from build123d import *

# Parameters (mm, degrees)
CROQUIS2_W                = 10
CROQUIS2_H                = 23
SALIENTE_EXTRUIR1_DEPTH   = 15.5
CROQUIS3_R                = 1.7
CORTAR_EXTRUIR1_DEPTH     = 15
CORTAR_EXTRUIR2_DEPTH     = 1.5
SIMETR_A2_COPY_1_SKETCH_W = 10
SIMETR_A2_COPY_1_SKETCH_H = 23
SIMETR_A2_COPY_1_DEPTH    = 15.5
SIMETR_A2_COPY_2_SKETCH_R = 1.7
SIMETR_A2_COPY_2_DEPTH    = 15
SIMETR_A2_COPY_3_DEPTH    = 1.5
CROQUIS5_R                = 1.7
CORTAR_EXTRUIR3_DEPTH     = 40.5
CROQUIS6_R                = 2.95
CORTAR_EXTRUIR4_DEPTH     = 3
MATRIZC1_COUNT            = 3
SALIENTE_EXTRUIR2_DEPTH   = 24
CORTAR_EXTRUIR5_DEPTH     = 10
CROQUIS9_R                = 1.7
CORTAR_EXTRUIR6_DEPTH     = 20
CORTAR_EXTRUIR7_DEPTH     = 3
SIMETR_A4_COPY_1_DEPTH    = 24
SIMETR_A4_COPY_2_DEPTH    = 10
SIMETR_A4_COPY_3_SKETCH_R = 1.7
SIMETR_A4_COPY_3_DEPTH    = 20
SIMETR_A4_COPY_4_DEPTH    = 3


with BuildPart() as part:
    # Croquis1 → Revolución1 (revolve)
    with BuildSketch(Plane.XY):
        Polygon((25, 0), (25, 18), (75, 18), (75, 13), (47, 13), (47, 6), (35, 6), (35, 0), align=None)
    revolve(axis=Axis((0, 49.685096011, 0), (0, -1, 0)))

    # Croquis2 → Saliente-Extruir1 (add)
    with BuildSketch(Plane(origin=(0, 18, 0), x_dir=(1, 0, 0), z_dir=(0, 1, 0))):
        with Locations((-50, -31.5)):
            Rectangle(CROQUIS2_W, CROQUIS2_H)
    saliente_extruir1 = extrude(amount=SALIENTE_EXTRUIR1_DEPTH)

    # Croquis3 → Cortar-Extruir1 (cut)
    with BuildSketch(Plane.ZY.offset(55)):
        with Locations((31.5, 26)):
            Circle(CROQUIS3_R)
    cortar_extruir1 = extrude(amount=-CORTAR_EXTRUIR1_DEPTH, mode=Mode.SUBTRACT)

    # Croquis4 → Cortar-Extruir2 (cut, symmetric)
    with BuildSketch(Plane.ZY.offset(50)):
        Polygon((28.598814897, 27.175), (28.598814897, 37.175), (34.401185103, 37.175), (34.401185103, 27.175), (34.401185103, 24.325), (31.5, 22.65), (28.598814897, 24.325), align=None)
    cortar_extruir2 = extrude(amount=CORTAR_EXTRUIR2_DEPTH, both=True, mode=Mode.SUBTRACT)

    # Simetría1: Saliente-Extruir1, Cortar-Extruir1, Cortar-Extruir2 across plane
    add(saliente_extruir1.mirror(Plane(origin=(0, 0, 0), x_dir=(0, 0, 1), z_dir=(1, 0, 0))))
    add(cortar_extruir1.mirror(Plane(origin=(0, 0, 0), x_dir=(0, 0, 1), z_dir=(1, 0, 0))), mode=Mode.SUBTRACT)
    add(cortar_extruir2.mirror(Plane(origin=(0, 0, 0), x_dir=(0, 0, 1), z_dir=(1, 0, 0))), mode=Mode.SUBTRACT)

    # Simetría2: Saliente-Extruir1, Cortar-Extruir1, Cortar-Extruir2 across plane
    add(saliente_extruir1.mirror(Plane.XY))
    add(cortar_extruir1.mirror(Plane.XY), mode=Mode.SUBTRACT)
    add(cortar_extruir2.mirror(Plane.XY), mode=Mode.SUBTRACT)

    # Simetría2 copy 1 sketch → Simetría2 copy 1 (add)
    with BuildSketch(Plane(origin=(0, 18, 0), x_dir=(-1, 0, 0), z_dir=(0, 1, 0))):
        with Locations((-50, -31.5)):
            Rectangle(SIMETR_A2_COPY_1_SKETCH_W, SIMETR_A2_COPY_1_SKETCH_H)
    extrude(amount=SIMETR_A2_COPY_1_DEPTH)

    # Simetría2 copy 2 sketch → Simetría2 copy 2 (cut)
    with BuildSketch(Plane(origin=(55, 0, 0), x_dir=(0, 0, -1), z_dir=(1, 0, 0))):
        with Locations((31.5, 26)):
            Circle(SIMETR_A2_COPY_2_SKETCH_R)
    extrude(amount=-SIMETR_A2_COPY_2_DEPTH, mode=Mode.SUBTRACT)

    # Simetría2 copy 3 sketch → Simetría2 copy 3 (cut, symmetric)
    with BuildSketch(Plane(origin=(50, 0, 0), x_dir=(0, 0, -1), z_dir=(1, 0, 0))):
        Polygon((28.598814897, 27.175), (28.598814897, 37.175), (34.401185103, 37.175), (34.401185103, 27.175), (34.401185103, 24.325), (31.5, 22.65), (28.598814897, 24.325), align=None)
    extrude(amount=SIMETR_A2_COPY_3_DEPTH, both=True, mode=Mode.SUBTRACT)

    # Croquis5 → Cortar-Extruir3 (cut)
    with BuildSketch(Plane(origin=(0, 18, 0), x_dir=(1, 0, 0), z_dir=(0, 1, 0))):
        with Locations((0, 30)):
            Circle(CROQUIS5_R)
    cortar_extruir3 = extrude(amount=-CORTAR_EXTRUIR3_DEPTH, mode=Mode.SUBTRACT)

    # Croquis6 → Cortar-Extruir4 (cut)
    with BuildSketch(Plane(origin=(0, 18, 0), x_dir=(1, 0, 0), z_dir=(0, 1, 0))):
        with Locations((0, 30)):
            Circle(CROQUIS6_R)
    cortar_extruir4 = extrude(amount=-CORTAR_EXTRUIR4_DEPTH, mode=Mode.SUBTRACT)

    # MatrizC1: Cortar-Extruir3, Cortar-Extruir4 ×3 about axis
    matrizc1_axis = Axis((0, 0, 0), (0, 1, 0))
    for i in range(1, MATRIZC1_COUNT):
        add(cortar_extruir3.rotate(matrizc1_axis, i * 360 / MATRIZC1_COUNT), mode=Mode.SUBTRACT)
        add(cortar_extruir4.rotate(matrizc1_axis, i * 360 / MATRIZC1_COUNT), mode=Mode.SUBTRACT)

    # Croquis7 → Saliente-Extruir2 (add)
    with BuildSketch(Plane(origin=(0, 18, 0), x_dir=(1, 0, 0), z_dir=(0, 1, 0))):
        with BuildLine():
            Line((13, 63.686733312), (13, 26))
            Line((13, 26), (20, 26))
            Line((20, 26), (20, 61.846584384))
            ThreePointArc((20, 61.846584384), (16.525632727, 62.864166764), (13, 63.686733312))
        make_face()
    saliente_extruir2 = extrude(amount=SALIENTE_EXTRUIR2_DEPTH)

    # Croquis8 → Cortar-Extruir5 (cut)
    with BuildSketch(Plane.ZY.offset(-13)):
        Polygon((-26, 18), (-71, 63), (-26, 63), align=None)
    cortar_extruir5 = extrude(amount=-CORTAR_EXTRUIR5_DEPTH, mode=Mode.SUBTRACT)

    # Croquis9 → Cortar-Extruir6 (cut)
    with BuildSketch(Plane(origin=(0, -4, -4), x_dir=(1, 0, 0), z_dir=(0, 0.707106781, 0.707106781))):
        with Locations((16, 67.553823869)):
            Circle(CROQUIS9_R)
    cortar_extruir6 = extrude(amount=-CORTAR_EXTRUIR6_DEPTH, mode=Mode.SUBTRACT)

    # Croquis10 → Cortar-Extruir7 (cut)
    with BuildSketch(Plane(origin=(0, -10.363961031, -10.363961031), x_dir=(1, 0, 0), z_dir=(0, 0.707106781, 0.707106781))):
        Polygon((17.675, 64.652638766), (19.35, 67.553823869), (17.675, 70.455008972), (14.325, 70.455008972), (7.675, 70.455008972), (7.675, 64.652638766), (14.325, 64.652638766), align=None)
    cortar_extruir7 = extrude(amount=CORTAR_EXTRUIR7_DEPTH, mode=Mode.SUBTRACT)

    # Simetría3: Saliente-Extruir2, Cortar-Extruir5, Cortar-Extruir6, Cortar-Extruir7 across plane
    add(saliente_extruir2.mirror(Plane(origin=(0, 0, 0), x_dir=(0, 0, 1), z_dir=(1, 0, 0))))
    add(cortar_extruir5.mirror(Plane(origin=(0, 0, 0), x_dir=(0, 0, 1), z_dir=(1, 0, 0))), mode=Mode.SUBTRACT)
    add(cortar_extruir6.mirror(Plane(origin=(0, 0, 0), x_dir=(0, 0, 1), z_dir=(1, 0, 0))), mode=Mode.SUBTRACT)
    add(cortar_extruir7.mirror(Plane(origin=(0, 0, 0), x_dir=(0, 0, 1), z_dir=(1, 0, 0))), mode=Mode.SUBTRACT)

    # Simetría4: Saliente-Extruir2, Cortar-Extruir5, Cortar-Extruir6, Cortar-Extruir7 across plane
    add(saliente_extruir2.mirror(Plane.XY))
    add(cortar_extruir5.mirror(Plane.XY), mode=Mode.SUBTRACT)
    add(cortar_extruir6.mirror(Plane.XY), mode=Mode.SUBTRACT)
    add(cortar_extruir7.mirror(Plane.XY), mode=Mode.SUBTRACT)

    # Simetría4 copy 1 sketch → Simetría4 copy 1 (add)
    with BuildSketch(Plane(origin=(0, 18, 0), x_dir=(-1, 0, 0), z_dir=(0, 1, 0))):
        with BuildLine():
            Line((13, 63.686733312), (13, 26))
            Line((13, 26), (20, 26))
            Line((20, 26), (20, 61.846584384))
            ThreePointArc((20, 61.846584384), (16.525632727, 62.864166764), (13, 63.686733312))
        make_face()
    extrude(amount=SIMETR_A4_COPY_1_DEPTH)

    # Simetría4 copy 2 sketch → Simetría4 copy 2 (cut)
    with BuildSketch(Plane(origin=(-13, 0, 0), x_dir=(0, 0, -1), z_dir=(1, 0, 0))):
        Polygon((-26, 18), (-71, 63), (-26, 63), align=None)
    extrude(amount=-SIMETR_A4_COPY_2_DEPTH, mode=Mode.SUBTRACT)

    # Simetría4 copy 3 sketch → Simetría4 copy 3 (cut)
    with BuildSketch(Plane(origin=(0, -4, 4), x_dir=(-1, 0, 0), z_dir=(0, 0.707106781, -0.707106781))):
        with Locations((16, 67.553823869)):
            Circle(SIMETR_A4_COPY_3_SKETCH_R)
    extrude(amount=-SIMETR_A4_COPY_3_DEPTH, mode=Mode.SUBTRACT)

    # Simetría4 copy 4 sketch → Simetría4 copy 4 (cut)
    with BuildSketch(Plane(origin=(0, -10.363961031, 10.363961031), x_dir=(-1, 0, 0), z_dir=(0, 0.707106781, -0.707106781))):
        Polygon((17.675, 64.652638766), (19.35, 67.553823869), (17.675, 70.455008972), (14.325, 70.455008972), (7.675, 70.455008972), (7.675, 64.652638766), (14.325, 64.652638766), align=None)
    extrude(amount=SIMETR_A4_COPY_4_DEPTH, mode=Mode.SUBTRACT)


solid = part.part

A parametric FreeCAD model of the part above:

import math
import FreeCAD as App
import Part
import Sketcher

V = App.Vector
Q = App.Units.Quantity


def add_polygon(sketch, points):
    """Adds a closed chain of lines whose ends are joined by coincident constraints."""
    first, n = sketch.GeometryCount, len(points)
    for a, b in zip(points, points[1:] + points[:1]):
        sketch.addGeometry(Part.LineSegment(App.Vector(*a, 0), App.Vector(*b, 0)), False)
    for i in range(n):
        sketch.addConstraint(Sketcher.Constraint("Coincident", first + i, 2, first + (i + 1) % n, 1))

doc = App.newDocument("Part")
body = doc.addObject("PartDesign::Body", "Body")

sketch1 = body.newObject("Sketcher::SketchObject", "Sketch")
sketch1.AttachmentSupport = (doc.getObject("XY_Plane"), [""])
sketch1.MapMode = "FlatFace"
add_polygon(sketch1, [(25, 18), (25, 0), (35, 0), (35, 6), (47, 6), (47, 13), (75, 13), (75, 18)])
sketch1.addConstraint(Sketcher.Constraint("Vertical", 0))
sketch1.addConstraint(Sketcher.Constraint("Horizontal", 1))
sketch1.addConstraint(Sketcher.Constraint("Vertical", 2))
sketch1.addConstraint(Sketcher.Constraint("Horizontal", 3))
sketch1.addConstraint(Sketcher.Constraint("Vertical", 4))
sketch1.addConstraint(Sketcher.Constraint("Horizontal", 5))
sketch1.addConstraint(Sketcher.Constraint("Vertical", 6))
sketch1.addConstraint(Sketcher.Constraint("Horizontal", 7))
sketch1.addConstraint(Sketcher.Constraint("PointOnObject", 0, 2, -1))
sketch1.addConstraint(Sketcher.Constraint("DistanceX", 1, 1, 1, 2, 10.0))
sketch1.addConstraint(Sketcher.Constraint("DistanceX", 3, 1, 3, 2, 12.0))
sketch1.addConstraint(Sketcher.Constraint("DistanceX", 5, 1, 5, 2, 28.0))
sketch1.addConstraint(Sketcher.Constraint("DistanceY", 0, 2, 0, 1, 18.0))
sketch1.addConstraint(Sketcher.Constraint("DistanceY", 2, 1, 2, 2, 6.0))
sketch1.addConstraint(Sketcher.Constraint("DistanceY", 4, 1, 4, 2, 7.0))
sketch1.addConstraint(Sketcher.Constraint("DistanceX", -1, 1, 0, 2, 25.0))
revolution = body.newObject("PartDesign::Revolution", "Revolution")
revolution.Profile = sketch1
revolution.ReferenceAxis = (sketch1, ["V_Axis"])
revolution.Angle = 360

sketch2 = body.newObject("Sketcher::SketchObject", "Sketch001")
sketch2.AttachmentSupport = (doc.getObject("XZ_Plane"), [""])
sketch2.MapMode = "FlatFace"
sketch2.AttachmentOffset = App.Placement(V(0, 0, -18), App.Rotation())
add_polygon(sketch2, [(-55, 20), (-55, 43), (-45, 43), (-45, 20)])
sketch2.addConstraint(Sketcher.Constraint("Vertical", 0))
sketch2.addConstraint(Sketcher.Constraint("Horizontal", 1))
sketch2.addConstraint(Sketcher.Constraint("Vertical", 2))
sketch2.addConstraint(Sketcher.Constraint("Horizontal", 3))
sketch2.addConstraint(Sketcher.Constraint("DistanceX", 1, 1, 1, 2, 10.0))
sketch2.addConstraint(Sketcher.Constraint("DistanceY", 0, 1, 0, 2, 23.0))
sketch2.addConstraint(Sketcher.Constraint("DistanceX", 0, 2, -1, 1, 55.0))
sketch2.addConstraint(Sketcher.Constraint("DistanceY", -1, 1, 0, 2, 43.0))
pad1 = body.newObject("PartDesign::Pad", "Pad")
pad1.Profile = sketch2
pad1.Length = 15.5
pad1.Reversed = True

sketch3 = body.newObject("Sketcher::SketchObject", "Sketch002")
sketch3.AttachmentSupport = (doc.getObject("YZ_Plane"), [""])
sketch3.MapMode = "FlatFace"
sketch3.AttachmentOffset = App.Placement(V(0, 0, -55), App.Rotation())
sketch3.addGeometry(Part.Circle(V(26, 31.5, 0), V(0, 0, 1), 1.7), False)
sketch3.addConstraint(Sketcher.Constraint("Diameter", 0, 3.4))
sketch3.addConstraint(Sketcher.Constraint("DistanceX", -1, 1, 0, 3, 26.0))
sketch3.addConstraint(Sketcher.Constraint("DistanceY", -1, 1, 0, 3, 31.5))
pocket1 = body.newObject("PartDesign::Pocket", "Pocket")
pocket1.Profile = sketch3
pocket1.Length = 15
pocket1.Reversed = True

sketch4 = body.newObject("Sketcher::SketchObject", "Sketch003")
sketch4.AttachmentSupport = (doc.getObject("YZ_Plane"), [""])
sketch4.MapMode = "FlatFace"
sketch4.AttachmentOffset = App.Placement(V(0, 0, -50), App.Rotation())
add_polygon(sketch4, [(37.2, 28.6), (24.3, 28.6), (22.6, 31.5), (24.3, 34.4), (37.2, 34.4)])
sketch4.addConstraint(Sketcher.Constraint("Horizontal", 0))
sketch4.addConstraint(Sketcher.Constraint("Horizontal", 3))
sketch4.addConstraint(Sketcher.Constraint("Vertical", 4))
sketch4.addConstraint(Sketcher.Constraint("Vertical", 0, 2, 2, 2))
sketch4.addConstraint(Sketcher.Constraint("Equal", 1, 2))
sketch4.addConstraint(Sketcher.Constraint("Angle", 1, Q("120 deg")))
sketch4.addConstraint(Sketcher.Constraint("DistanceX", 0, 2, 0, 1, 12.85))
sketch4.addConstraint(Sketcher.Constraint("DistanceY", -1, 1, 1, 2, 31.5))
sketch4.addConstraint(Sketcher.Constraint("Distance", 1, 3.35))
sketch4.addConstraint(Sketcher.Constraint("DistanceX", -1, 1, 1, 2, 22.65))
pocket2 = body.newObject("PartDesign::Pocket", "Pocket001")
pocket2.Profile = sketch4
pocket2.Length = 3
pocket2.Midplane = True
doc.recompute()

mirrored = body.newObject("PartDesign::Mirrored", "Mirrored")
mirrored.Originals = [pad1, pocket1, pocket2]
mirrored.MirrorPlane = (doc.getObject("YZ_Plane"), [""])
body.Tip = mirrored
doc.recompute()

mirrored2 = body.newObject("PartDesign::Mirrored", "Mirrored001")
mirrored2.Originals = [pad1, pocket1, pocket2]
mirrored2.MirrorPlane = (doc.getObject("XY_Plane"), [""])
body.Tip = mirrored2

sketch5 = body.newObject("Sketcher::SketchObject", "Sketch004")
sketch5.AttachmentSupport = (doc.getObject("XZ_Plane"), [""])
sketch5.MapMode = "FlatFace"
sketch5.AttachmentOffset = App.Placement(V(0, 0, -18), App.Rotation())
add_polygon(sketch5, [(55, -20), (55, -43), (45, -43), (45, -20)])
sketch5.addConstraint(Sketcher.Constraint("Vertical", 0))
sketch5.addConstraint(Sketcher.Constraint("Horizontal", 1))
sketch5.addConstraint(Sketcher.Constraint("Vertical", 2))
sketch5.addConstraint(Sketcher.Constraint("Horizontal", 3))
sketch5.addConstraint(Sketcher.Constraint("DistanceX", 1, 2, 1, 1, 10.0))
sketch5.addConstraint(Sketcher.Constraint("DistanceY", 0, 2, 0, 1, 23.0))
sketch5.addConstraint(Sketcher.Constraint("DistanceX", -1, 1, 0, 2, 55.0))
sketch5.addConstraint(Sketcher.Constraint("DistanceY", 0, 2, -1, 1, 43.0))
pad2 = body.newObject("PartDesign::Pad", "Pad001")
pad2.Profile = sketch5
pad2.Length = 15.5
pad2.Reversed = True

sketch6 = body.newObject("Sketcher::SketchObject", "Sketch005")
sketch6.AttachmentSupport = (doc.getObject("YZ_Plane"), [""])
sketch6.MapMode = "FlatFace"
sketch6.AttachmentOffset = App.Placement(V(0, 0, 55), App.Rotation())
sketch6.addGeometry(Part.Circle(V(26, -31.5, 0), V(0, 0, 1), 1.7), False)
sketch6.addConstraint(Sketcher.Constraint("Diameter", 0, 3.4))
sketch6.addConstraint(Sketcher.Constraint("DistanceX", -1, 1, 0, 3, 26.0))
sketch6.addConstraint(Sketcher.Constraint("DistanceY", 0, 3, -1, 1, 31.5))
pocket3 = body.newObject("PartDesign::Pocket", "Pocket002")
pocket3.Profile = sketch6
pocket3.Length = 15

sketch7 = body.newObject("Sketcher::SketchObject", "Sketch006")
sketch7.AttachmentSupport = (doc.getObject("YZ_Plane"), [""])
sketch7.MapMode = "FlatFace"
sketch7.AttachmentOffset = App.Placement(V(0, 0, 50), App.Rotation())
add_polygon(sketch7, [(37.2, -28.6), (24.3, -28.6), (22.6, -31.5), (24.3, -34.4), (37.2, -34.4)])
sketch7.addConstraint(Sketcher.Constraint("Horizontal", 0))
sketch7.addConstraint(Sketcher.Constraint("Horizontal", 3))
sketch7.addConstraint(Sketcher.Constraint("Vertical", 4))
sketch7.addConstraint(Sketcher.Constraint("Vertical", 0, 2, 2, 2))
sketch7.addConstraint(Sketcher.Constraint("Equal", 1, 2))
sketch7.addConstraint(Sketcher.Constraint("Angle", 1, Q("-120 deg")))
sketch7.addConstraint(Sketcher.Constraint("DistanceX", 0, 2, 0, 1, 12.85))
sketch7.addConstraint(Sketcher.Constraint("DistanceY", 1, 2, -1, 1, 31.5))
sketch7.addConstraint(Sketcher.Constraint("Distance", 1, 3.35))
sketch7.addConstraint(Sketcher.Constraint("DistanceX", -1, 1, 1, 2, 22.65))
pocket4 = body.newObject("PartDesign::Pocket", "Pocket003")
pocket4.Profile = sketch7
pocket4.Length = 3
pocket4.Midplane = True

sketch8 = body.newObject("Sketcher::SketchObject", "Sketch007")
sketch8.AttachmentSupport = (doc.getObject("XZ_Plane"), [""])
sketch8.MapMode = "FlatFace"
sketch8.AttachmentOffset = App.Placement(V(0, 0, -18), App.Rotation())
sketch8.addGeometry(Part.Circle(V(0, -30, 0), V(0, 0, 1), 1.7), False)
sketch8.addConstraint(Sketcher.Constraint("PointOnObject", 0, 3, -2))
sketch8.addConstraint(Sketcher.Constraint("Diameter", 0, 3.4))
sketch8.addConstraint(Sketcher.Constraint("DistanceY", 0, 3, -1, 1, 30.0))
pocket5 = body.newObject("PartDesign::Pocket", "Pocket004")
pocket5.Profile = sketch8
pocket5.Length = 40.5
pocket5.Reversed = True

sketch9 = body.newObject("Sketcher::SketchObject", "Sketch008")
sketch9.AttachmentSupport = (doc.getObject("XZ_Plane"), [""])
sketch9.MapMode = "FlatFace"
sketch9.AttachmentOffset = App.Placement(V(0, 0, -18), App.Rotation())
sketch9.addGeometry(Part.Circle(V(0, -30, 0), V(0, 0, 1), 3), False)
sketch9.addConstraint(Sketcher.Constraint("PointOnObject", 0, 3, -2))
sketch9.addConstraint(Sketcher.Constraint("Diameter", 0, 5.9))
sketch9.addConstraint(Sketcher.Constraint("DistanceY", 0, 3, -1, 1, 30.0))
pocket6 = body.newObject("PartDesign::Pocket", "Pocket005")
pocket6.Profile = sketch9
pocket6.Length = 3
pocket6.Reversed = True
doc.recompute()

polarpattern = body.newObject("PartDesign::PolarPattern", "PolarPattern")
polarpattern.Originals = [pocket5, pocket6]
polarpattern.Axis = (doc.getObject("Y_Axis"), [""])
polarpattern.Angle = 360
polarpattern.Occurrences = 3
body.Tip = polarpattern

sketch10 = body.newObject("Sketcher::SketchObject", "Sketch009")
sketch10.AttachmentSupport = (doc.getObject("XZ_Plane"), [""])
sketch10.MapMode = "FlatFace"
sketch10.AttachmentOffset = App.Placement(V(0, 0, -18), App.Rotation())
sketch10.addGeometry(Part.LineSegment(V(13, -64, 0), V(13, -26, 0)), False)
sketch10.addGeometry(Part.LineSegment(V(13, -26, 0), V(20, -26, 0)), False)
sketch10.addGeometry(Part.LineSegment(V(20, -26, 0), V(20, -62, 0)), False)
sketch10.addGeometry(Part.ArcOfCircle(Part.Circle(V(0, 0, 0), V(0, 0, 1), 65), math.radians(-78.46), math.radians(-72.08)), False)
sketch10.addConstraint(Sketcher.Constraint("Coincident", 0, 2, 1, 1))
sketch10.addConstraint(Sketcher.Constraint("Coincident", 1, 2, 2, 1))
sketch10.addConstraint(Sketcher.Constraint("Coincident", 2, 2, 3, 2))
sketch10.addConstraint(Sketcher.Constraint("Coincident", 3, 1, 0, 1))
sketch10.addConstraint(Sketcher.Constraint("Vertical", 0))
sketch10.addConstraint(Sketcher.Constraint("Horizontal", 1))
sketch10.addConstraint(Sketcher.Constraint("Vertical", 2))
sketch10.addConstraint(Sketcher.Constraint("Coincident", 3, 3, -1, 1))
sketch10.addConstraint(Sketcher.Constraint("Radius", 3, 65.0))
sketch10.addConstraint(Sketcher.Constraint("DistanceX", 1, 1, 1, 2, 7.0))
sketch10.addConstraint(Sketcher.Constraint("DistanceX", -1, 1, 0, 2, 13.0))
sketch10.addConstraint(Sketcher.Constraint("DistanceY", 0, 2, -1, 1, 26.0))
pad3 = body.newObject("PartDesign::Pad", "Pad002")
pad3.Profile = sketch10
pad3.Length = 24
pad3.Reversed = True

sketch11 = body.newObject("Sketcher::SketchObject", "Sketch010")
sketch11.AttachmentSupport = (doc.getObject("YZ_Plane"), [""])
sketch11.MapMode = "FlatFace"
sketch11.AttachmentOffset = App.Placement(V(0, 0, 13), App.Rotation())
add_polygon(sketch11, [(63, -71), (18, -26), (63, -26)])
sketch11.addConstraint(Sketcher.Constraint("Horizontal", 1))
sketch11.addConstraint(Sketcher.Constraint("Vertical", 2))
sketch11.addConstraint(Sketcher.Constraint("Equal", 1, 2))
sketch11.addConstraint(Sketcher.Constraint("DistanceX", 1, 1, 1, 2, 45.0))
sketch11.addConstraint(Sketcher.Constraint("DistanceX", -1, 1, 0, 2, 18.0))
sketch11.addConstraint(Sketcher.Constraint("DistanceY", 0, 2, -1, 1, 26.0))
pocket7 = body.newObject("PartDesign::Pocket", "Pocket006")
pocket7.Profile = sketch11
pocket7.Length = 10
pocket7.Reversed = True

sketch12 = body.newObject("Sketcher::SketchObject", "Sketch011")
sketch12.Placement = App.Placement(V(0, -4, -4), App.Rotation(V(1, 0, 0), V(0, 0.707106781, -0.707106781), V(0, 0.707106781, 0.707106781), "ZXY"))
sketch12.addGeometry(Part.Circle(V(16, 67.6, 0), V(0, 0, 1), 1.7), False)
sketch12.addConstraint(Sketcher.Constraint("Diameter", 0, 3.4))
sketch12.addConstraint(Sketcher.Constraint("DistanceX", -1, 1, 0, 3, 16.0))
sketch12.addConstraint(Sketcher.Constraint("DistanceY", -1, 1, 0, 3, 67.553824))
pocket8 = body.newObject("PartDesign::Pocket", "Pocket007")
pocket8.Profile = sketch12
pocket8.Length = 20

sketch13 = body.newObject("Sketcher::SketchObject", "Sketch012")
sketch13.Placement = App.Placement(V(0, -10.363961, -10.363961), App.Rotation(V(1, 0, 0), V(0, 0.707106781, -0.707106781), V(0, 0.707106781, 0.707106781), "ZXY"))
add_polygon(sketch13, [(17.7, 64.7), (19.4, 67.6), (17.7, 70.5), (7.7, 70.5), (7.7, 64.7)])
sketch13.addConstraint(Sketcher.Constraint("Horizontal", 2))
sketch13.addConstraint(Sketcher.Constraint("Vertical", 3))
sketch13.addConstraint(Sketcher.Constraint("Horizontal", 4))
sketch13.addConstraint(Sketcher.Constraint("Vertical", 1, 2, 4, 2))
sketch13.addConstraint(Sketcher.Constraint("Equal", 0, 1))
sketch13.addConstraint(Sketcher.Constraint("DistanceX", 2, 2, 2, 1, 10.0))
sketch13.addConstraint(Sketcher.Constraint("Angle", 0, Q("60 deg")))
sketch13.addConstraint(Sketcher.Constraint("Distance", 0, 3.35))
sketch13.addConstraint(Sketcher.Constraint("DistanceX", -1, 1, 0, 2, 19.35))
sketch13.addConstraint(Sketcher.Constraint("DistanceY", -1, 1, 1, 2, 70.455009))
pocket9 = body.newObject("PartDesign::Pocket", "Pocket008")
pocket9.Profile = sketch13
pocket9.Length = 3
pocket9.Reversed = True
doc.recompute()

mirrored3 = body.newObject("PartDesign::Mirrored", "Mirrored002")
mirrored3.Originals = [pad3, pocket7, pocket8, pocket9]
mirrored3.MirrorPlane = (doc.getObject("YZ_Plane"), [""])
body.Tip = mirrored3
doc.recompute()

mirrored4 = body.newObject("PartDesign::Mirrored", "Mirrored003")
mirrored4.Originals = [pad3, pocket7, pocket8, pocket9]
mirrored4.MirrorPlane = (doc.getObject("XY_Plane"), [""])
body.Tip = mirrored4

sketch14 = body.newObject("Sketcher::SketchObject", "Sketch013")
sketch14.AttachmentSupport = (doc.getObject("XZ_Plane"), [""])
sketch14.MapMode = "FlatFace"
sketch14.AttachmentOffset = App.Placement(V(0, 0, -18), App.Rotation())
sketch14.addGeometry(Part.LineSegment(V(-13, 64, 0), V(-13, 26, 0)), False)
sketch14.addGeometry(Part.LineSegment(V(-13, 26, 0), V(-20, 26, 0)), False)
sketch14.addGeometry(Part.LineSegment(V(-20, 26, 0), V(-20, 62, 0)), False)
sketch14.addGeometry(Part.ArcOfCircle(Part.Circle(V(0, 0, 0), V(0, 0, 1), 65), math.radians(101.54), math.radians(107.92)), False)
sketch14.addConstraint(Sketcher.Constraint("Coincident", 0, 2, 1, 1))
sketch14.addConstraint(Sketcher.Constraint("Coincident", 1, 2, 2, 1))
sketch14.addConstraint(Sketcher.Constraint("Coincident", 2, 2, 3, 2))
sketch14.addConstraint(Sketcher.Constraint("Coincident", 3, 1, 0, 1))
sketch14.addConstraint(Sketcher.Constraint("Vertical", 0))
sketch14.addConstraint(Sketcher.Constraint("Horizontal", 1))
sketch14.addConstraint(Sketcher.Constraint("Vertical", 2))
sketch14.addConstraint(Sketcher.Constraint("Coincident", 3, 3, -1, 1))
sketch14.addConstraint(Sketcher.Constraint("Radius", 3, 65.0))
sketch14.addConstraint(Sketcher.Constraint("DistanceX", 1, 2, 1, 1, 7.0))
sketch14.addConstraint(Sketcher.Constraint("DistanceX", 0, 2, -1, 1, 13.0))
sketch14.addConstraint(Sketcher.Constraint("DistanceY", -1, 1, 0, 2, 26.0))
pad4 = body.newObject("PartDesign::Pad", "Pad003")
pad4.Profile = sketch14
pad4.Length = 24
pad4.Reversed = True

sketch15 = body.newObject("Sketcher::SketchObject", "Sketch014")
sketch15.AttachmentSupport = (doc.getObject("YZ_Plane"), [""])
sketch15.MapMode = "FlatFace"
sketch15.AttachmentOffset = App.Placement(V(0, 0, -13), App.Rotation())
add_polygon(sketch15, [(63, 71), (18, 26), (63, 26)])
sketch15.addConstraint(Sketcher.Constraint("Horizontal", 1))
sketch15.addConstraint(Sketcher.Constraint("Vertical", 2))
sketch15.addConstraint(Sketcher.Constraint("Equal", 1, 2))
sketch15.addConstraint(Sketcher.Constraint("DistanceX", 1, 1, 1, 2, 45.0))
sketch15.addConstraint(Sketcher.Constraint("DistanceX", -1, 1, 0, 2, 18.0))
sketch15.addConstraint(Sketcher.Constraint("DistanceY", -1, 1, 0, 2, 26.0))
pocket10 = body.newObject("PartDesign::Pocket", "Pocket009")
pocket10.Profile = sketch15
pocket10.Length = 10

sketch16 = body.newObject("Sketcher::SketchObject", "Sketch015")
sketch16.Placement = App.Placement(V(0, -4, 4), App.Rotation(V(-1, 0, 0), V(0, 0.707106781, 0.707106781), V(0, 0.707106781, -0.707106781), "ZXY"))
sketch16.addGeometry(Part.Circle(V(16, 67.6, 0), V(0, 0, 1), 1.7), False)
sketch16.addConstraint(Sketcher.Constraint("Diameter", 0, 3.4))
sketch16.addConstraint(Sketcher.Constraint("DistanceX", -1, 1, 0, 3, 16.0))
sketch16.addConstraint(Sketcher.Constraint("DistanceY", -1, 1, 0, 3, 67.553824))
pocket11 = body.newObject("PartDesign::Pocket", "Pocket010")
pocket11.Profile = sketch16
pocket11.Length = 20

sketch17 = body.newObject("Sketcher::SketchObject", "Sketch016")
sketch17.Placement = App.Placement(V(0, -10.363961, 10.363961), App.Rotation(V(-1, 0, 0), V(0, 0.707106781, 0.707106781), V(0, 0.707106781, -0.707106781), "ZXY"))
add_polygon(sketch17, [(17.7, 64.7), (19.4, 67.6), (17.7, 70.5), (7.7, 70.5), (7.7, 64.7)])
sketch17.addConstraint(Sketcher.Constraint("Horizontal", 2))
sketch17.addConstraint(Sketcher.Constraint("Vertical", 3))
sketch17.addConstraint(Sketcher.Constraint("Horizontal", 4))
sketch17.addConstraint(Sketcher.Constraint("Vertical", 1, 2, 4, 2))
sketch17.addConstraint(Sketcher.Constraint("Equal", 0, 1))
sketch17.addConstraint(Sketcher.Constraint("DistanceX", 2, 2, 2, 1, 10.0))
sketch17.addConstraint(Sketcher.Constraint("Angle", 0, Q("60 deg")))
sketch17.addConstraint(Sketcher.Constraint("Distance", 0, 3.35))
sketch17.addConstraint(Sketcher.Constraint("DistanceX", -1, 1, 0, 2, 19.35))
sketch17.addConstraint(Sketcher.Constraint("DistanceY", -1, 1, 1, 2, 70.455009))
pocket12 = body.newObject("PartDesign::Pocket", "Pocket011")
pocket12.Profile = sketch17
pocket12.Length = 3
pocket12.Reversed = True

doc.recompute()
